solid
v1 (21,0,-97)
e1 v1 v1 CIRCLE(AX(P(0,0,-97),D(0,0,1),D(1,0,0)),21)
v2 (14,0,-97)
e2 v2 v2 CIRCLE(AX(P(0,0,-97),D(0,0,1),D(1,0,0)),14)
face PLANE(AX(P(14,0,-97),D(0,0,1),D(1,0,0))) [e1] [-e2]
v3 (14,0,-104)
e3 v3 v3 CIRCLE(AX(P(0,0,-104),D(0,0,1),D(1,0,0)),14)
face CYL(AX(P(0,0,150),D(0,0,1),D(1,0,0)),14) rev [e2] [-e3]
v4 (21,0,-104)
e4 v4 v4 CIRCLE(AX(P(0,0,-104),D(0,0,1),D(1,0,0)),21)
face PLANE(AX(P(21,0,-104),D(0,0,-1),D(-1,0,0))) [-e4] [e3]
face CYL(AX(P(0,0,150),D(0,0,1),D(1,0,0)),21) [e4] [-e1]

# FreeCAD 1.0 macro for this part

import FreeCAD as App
import Part
import Sketcher

V = App.Vector

doc = App.newDocument("Part")
params = doc.addObject("Spreadsheet::Sheet", "Params")
for row, (alias, value) in enumerate([
    ("sketch1_width", "7 mm"),
    ("revolution_angle", "360 deg"),
], start=1):
    params.set(f"A{row}", alias)
    params.set(f"B{row}", "=" + value)
    params.setAlias(f"B{row}", alias)

body = doc.addObject("PartDesign::Body", "Body")

# Sketch on XZ plane
sketch1 = body.newObject("Sketcher::SketchObject", "Sketch")
sketch1.AttachmentSupport = (doc.getObject("XZ_Plane"), [""])
sketch1.MapMode = "FlatFace"
sketch1.addGeometry([
    Part.LineSegment(V(14, -104, 0), V(14, -97, 0)),
    Part.LineSegment(V(14, -97, 0), V(21, -97, 0)),
    Part.LineSegment(V(21, -97, 0), V(21, -104, 0)),
    Part.LineSegment(V(21, -104, 0), V(14, -104, 0)),
], False)
sketch1.addConstraint([
    Sketcher.Constraint("Coincident", 0, 2, 1, 1),
    Sketcher.Constraint("Coincident", 1, 2, 2, 1),
    Sketcher.Constraint("Coincident", 2, 2, 3, 1),
    Sketcher.Constraint("Coincident", 3, 2, 0, 1),
    Sketcher.Constraint("Vertical", 0),
    Sketcher.Constraint("Horizontal", 1),
    Sketcher.Constraint("Vertical", 2),
    Sketcher.Constraint("Horizontal", 3),
    Sketcher.Constraint("Equal", 3, 0),
    Sketcher.Constraint("DistanceX", 1, 1, 1, 2, 7.0),
    Sketcher.Constraint("DistanceX", -1, 1, 0, 2, 14.0),
    Sketcher.Constraint("DistanceY", 0, 2, -1, 1, 97.0),
])
sketch1.setExpression("Constraints[9]", "Params.sketch1_width")
revolution = body.newObject("PartDesign::Revolution", "Revolution")
revolution.Profile = sketch1
revolution.ReferenceAxis = (sketch1, ["V_Axis"])
revolution.setExpression("Angle", "Params.revolution_angle")

doc.recompute()
